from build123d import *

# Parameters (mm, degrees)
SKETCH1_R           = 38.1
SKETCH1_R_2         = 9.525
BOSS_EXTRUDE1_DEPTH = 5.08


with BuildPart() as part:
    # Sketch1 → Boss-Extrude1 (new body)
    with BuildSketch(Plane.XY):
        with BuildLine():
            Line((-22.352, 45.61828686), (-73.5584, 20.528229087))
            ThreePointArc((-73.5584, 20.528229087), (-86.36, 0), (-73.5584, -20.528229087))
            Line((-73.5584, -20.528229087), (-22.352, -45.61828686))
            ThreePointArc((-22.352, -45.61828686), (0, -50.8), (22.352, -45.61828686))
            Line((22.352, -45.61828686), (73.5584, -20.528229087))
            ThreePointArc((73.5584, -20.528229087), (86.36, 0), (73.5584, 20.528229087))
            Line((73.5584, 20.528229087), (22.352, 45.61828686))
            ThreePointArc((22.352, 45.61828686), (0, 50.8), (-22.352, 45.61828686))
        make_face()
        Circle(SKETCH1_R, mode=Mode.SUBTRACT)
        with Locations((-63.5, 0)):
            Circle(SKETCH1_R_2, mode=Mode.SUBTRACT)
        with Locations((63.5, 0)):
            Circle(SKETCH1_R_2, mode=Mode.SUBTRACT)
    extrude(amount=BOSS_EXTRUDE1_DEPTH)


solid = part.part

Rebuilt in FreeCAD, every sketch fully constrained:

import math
import FreeCAD as App
import Part
import Sketcher
from FreeCAD import Vector
Q = App.Units.Quantity

doc = App.newDocument("Part")
body = doc.addObject("PartDesign::Body", "Body")

# Sketch on XY plane
sketch1 = doc.addObject("Sketcher::SketchObject", "Sketch")
body.addObject(sketch1)
sketch1.AttachmentSupport = (doc.XY_Plane, [""])
sketch1.MapMode = "FlatFace"
sketch1.addGeometry([
    Part.LineSegment(Vector(-22, 46, 0), Vector(-74, 21, 0)),  # 0
    Part.ArcOfCircle(Part.Circle(Vector(-64, 0, 0), Vector(0, 0, 1), 23), math.radians(116), math.radians(244)),  # 1
    Part.LineSegment(Vector(-74, -21, 0), Vector(-22, -46, 0)),  # 2
    Part.ArcOfCircle(Part.Circle(Vector(0, 0, 0), Vector(0, 0, 1), 51), math.radians(-116), math.radians(-64)),  # 3
    Part.LineSegment(Vector(22, -46, 0), Vector(74, -21, 0)),  # 4
    Part.ArcOfCircle(Part.Circle(Vector(64, 0, 0), Vector(0, 0, 1), 23), math.radians(-64), math.radians(64)),  # 5
    Part.LineSegment(Vector(74, 21, 0), Vector(22, 46, 0)),  # 6
    Part.ArcOfCircle(Part.Circle(Vector(0, 0, 0), Vector(0, 0, 1), 51), math.radians(64), math.radians(116)),  # 7
    Part.Circle(Vector(-64, 0, 0), Vector(0, 0, 1), 10),  # 8
    Part.Circle(Vector(0, 0, 0), Vector(0, 0, 1), 38),  # 9
    Part.Circle(Vector(64, 0, 0), Vector(0, 0, 1), 10),  # 10
], False)
sketch1.addConstraint([
    Sketcher.Constraint("Tangent", 0, 2, 1, 1),
    Sketcher.Constraint("Tangent", 1, 2, 2, 1),
    Sketcher.Constraint("Tangent", 2, 2, 3, 1),
    Sketcher.Constraint("Tangent", 3, 2, 4, 1),
    Sketcher.Constraint("Tangent", 4, 2, 5, 1),
    Sketcher.Constraint("Tangent", 5, 2, 6, 1),
    Sketcher.Constraint("Tangent", 6, 2, 7, 1),
    Sketcher.Constraint("Tangent", 7, 2, 0, 1),
    Sketcher.Constraint("Coincident", 3, 3, -1, 1),
    Sketcher.Constraint("Coincident", 7, 3, -1, 1),
    Sketcher.Constraint("Coincident", 9, 3, -1, 1),
    Sketcher.Constraint("Coincident", 8, 3, 1, 3),
    Sketcher.Constraint("Coincident", 10, 3, 5, 3),
    Sketcher.Constraint("Equal", 1, 5),
    Sketcher.Constraint("Equal", 3, 7),
    Sketcher.Constraint("Equal", 8, 10),
    Sketcher.Constraint("Symmetric", 1, 3, 5, 3, -1, 1),
    Sketcher.Constraint("PointOnObject", 1, 3, -1),
    Sketcher.Constraint("Diameter", 9, Q("3 in")),
    Sketcher.Constraint("Radius", 3, Q("2 in")),
    Sketcher.Constraint("Radius", 1, Q("0.9 in")),
    Sketcher.Constraint("Diameter", 8, Q("0.75 in")),
    Sketcher.Constraint("DistanceX", 1, 3, 5, 3, Q("5 in")),
])
pad1 = doc.addObject("PartDesign::Pad", "Pad")
body.addObject(pad1)
pad1.Profile = sketch1
pad1.Length = Q("0.2 in")

doc.recompute()
